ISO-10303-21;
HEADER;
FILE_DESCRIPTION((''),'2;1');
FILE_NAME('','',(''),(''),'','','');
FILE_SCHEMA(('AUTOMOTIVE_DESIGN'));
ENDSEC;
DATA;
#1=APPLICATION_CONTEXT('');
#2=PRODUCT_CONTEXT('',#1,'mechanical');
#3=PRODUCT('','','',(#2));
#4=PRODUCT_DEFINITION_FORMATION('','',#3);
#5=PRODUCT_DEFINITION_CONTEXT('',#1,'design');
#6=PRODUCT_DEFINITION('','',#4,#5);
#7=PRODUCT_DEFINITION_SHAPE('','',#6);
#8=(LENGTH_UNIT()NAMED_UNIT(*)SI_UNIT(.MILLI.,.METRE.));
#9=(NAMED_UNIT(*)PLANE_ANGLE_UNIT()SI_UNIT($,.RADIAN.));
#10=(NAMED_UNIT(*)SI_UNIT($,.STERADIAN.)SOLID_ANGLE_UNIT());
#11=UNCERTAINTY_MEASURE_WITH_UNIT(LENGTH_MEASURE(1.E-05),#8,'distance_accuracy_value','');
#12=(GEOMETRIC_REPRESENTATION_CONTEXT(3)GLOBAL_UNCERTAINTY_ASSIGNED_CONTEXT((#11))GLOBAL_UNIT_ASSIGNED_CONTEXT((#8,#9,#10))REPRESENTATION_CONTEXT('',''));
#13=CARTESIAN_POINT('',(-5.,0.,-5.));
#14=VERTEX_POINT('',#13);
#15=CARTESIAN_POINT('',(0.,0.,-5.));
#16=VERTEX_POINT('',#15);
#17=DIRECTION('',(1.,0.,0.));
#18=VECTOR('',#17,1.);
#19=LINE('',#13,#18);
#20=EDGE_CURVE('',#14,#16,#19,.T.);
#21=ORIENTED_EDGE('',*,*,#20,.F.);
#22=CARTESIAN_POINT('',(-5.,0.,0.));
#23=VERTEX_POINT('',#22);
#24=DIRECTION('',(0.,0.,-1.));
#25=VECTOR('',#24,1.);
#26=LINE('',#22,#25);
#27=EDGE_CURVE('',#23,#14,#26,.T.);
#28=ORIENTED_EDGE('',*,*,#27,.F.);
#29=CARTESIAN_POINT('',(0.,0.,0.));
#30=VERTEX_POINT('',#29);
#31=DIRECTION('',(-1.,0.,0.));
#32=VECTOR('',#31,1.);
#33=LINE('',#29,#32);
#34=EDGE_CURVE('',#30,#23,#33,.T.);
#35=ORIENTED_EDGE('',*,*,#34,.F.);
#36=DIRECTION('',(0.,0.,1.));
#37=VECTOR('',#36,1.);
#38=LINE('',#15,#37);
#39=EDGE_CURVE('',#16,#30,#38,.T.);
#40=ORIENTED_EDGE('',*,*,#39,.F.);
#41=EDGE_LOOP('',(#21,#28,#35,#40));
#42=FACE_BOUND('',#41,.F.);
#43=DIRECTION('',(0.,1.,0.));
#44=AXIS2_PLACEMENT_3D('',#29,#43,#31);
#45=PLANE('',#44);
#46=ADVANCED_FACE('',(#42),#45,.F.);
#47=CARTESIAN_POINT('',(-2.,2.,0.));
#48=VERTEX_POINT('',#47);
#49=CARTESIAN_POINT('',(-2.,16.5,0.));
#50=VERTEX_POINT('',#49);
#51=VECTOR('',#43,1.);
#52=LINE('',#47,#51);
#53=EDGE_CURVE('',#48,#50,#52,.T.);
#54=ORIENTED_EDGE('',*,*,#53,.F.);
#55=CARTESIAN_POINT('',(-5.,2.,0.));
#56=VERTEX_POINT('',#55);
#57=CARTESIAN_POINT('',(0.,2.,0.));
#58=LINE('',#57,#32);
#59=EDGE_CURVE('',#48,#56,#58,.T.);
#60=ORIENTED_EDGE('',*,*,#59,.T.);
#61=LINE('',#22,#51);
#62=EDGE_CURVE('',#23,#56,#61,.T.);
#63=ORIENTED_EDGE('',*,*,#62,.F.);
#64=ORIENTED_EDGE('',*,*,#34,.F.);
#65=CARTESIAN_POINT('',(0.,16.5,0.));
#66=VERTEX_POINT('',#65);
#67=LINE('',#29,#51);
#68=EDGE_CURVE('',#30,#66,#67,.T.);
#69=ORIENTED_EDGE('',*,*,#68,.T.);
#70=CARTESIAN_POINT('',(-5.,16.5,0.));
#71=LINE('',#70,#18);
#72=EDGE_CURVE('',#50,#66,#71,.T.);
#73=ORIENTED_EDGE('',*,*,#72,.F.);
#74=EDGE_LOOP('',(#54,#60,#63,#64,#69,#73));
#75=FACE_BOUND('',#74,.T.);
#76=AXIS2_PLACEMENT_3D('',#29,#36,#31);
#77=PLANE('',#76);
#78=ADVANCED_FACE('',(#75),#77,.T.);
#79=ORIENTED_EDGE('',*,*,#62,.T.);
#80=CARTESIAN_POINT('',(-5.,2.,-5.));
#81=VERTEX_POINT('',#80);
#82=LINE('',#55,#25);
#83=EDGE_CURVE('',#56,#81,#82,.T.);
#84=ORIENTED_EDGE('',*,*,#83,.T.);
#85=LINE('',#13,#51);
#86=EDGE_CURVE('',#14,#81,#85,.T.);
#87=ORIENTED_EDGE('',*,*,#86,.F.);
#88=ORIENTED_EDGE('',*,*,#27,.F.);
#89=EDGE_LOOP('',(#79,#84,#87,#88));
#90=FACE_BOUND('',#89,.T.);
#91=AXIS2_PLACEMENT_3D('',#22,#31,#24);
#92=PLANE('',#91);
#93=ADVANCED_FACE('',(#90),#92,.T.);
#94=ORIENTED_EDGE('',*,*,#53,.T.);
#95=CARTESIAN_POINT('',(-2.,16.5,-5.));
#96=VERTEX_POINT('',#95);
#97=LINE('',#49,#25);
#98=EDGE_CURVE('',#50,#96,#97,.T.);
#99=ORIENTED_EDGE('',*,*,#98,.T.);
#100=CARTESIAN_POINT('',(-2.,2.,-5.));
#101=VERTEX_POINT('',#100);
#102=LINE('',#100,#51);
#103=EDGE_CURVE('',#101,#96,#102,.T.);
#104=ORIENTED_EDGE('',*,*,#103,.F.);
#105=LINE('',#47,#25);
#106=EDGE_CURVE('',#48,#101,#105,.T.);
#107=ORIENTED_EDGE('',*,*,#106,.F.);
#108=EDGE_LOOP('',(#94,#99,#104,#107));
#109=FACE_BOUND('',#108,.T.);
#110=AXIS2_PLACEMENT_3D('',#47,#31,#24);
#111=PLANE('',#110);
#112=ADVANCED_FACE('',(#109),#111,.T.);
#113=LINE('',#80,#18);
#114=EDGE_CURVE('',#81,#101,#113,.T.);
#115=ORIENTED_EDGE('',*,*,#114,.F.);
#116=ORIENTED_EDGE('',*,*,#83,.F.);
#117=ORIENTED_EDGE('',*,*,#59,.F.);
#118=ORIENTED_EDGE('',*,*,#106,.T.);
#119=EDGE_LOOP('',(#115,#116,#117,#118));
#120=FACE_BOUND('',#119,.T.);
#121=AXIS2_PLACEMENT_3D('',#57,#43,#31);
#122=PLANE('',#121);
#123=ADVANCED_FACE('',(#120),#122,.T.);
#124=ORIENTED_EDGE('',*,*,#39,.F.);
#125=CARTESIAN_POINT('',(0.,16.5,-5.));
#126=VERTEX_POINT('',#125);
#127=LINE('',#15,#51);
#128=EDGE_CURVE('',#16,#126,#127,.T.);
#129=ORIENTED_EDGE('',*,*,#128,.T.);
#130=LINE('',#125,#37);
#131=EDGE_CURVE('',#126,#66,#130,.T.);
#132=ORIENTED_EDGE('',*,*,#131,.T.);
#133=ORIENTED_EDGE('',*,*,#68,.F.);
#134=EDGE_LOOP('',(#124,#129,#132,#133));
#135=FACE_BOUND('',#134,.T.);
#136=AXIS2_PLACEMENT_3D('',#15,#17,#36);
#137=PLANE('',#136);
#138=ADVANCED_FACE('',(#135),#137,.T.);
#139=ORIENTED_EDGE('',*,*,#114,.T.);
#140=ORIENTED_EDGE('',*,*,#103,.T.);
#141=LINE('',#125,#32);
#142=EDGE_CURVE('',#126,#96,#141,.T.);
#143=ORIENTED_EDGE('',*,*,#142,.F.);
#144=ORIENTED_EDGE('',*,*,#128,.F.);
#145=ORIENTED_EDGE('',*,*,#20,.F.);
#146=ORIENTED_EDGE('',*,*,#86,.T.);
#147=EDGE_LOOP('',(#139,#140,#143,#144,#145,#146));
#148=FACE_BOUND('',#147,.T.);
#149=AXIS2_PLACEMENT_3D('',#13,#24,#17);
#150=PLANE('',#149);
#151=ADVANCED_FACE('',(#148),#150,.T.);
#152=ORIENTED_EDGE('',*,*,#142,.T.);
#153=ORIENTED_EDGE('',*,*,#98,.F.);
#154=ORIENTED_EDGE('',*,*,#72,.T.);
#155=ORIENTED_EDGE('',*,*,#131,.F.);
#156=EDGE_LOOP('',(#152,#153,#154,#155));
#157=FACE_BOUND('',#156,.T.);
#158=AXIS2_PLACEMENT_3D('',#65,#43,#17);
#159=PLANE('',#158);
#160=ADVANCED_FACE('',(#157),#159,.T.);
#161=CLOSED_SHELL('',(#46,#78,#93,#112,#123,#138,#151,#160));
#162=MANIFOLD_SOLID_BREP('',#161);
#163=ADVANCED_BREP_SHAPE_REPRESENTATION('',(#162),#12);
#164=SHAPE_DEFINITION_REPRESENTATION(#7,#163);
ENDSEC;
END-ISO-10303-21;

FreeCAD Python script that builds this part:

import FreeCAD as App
import Part
import Sketcher
from FreeCAD import Vector
Q = App.Units.Quantity

doc = App.newDocument("Part")
params = doc.addObject("Spreadsheet::Sheet", "Params")
for row, (alias, value) in enumerate([
    ("sketch1_width", "5 mm"),
    ("pad1_length", "2 mm"),
    ("sketch2_width", "2 mm"),
    ("sketch2_height", "5 mm"),
    ("pad2_length", "14.5 mm"),
], start=1):
    params.set(f"A{row}", alias)
    params.set(f"B{row}", "=" + value)
    params.setAlias(f"B{row}", alias)

body = doc.addObject("PartDesign::Body", "Body")

# Sketch on XZ plane
sketch1 = body.newObject("Sketcher::SketchObject", "Sketch")
sketch1.AttachmentSupport = (doc.getObject("XZ_Plane"), [""])
sketch1.MapMode = "FlatFace"
sketch1.addGeometry([
    Part.LineSegment(Vector(-5, 0, 0), Vector(0, 0, 0)),
    Part.LineSegment(Vector(0, 0, 0), Vector(0, -5, 0)),
    Part.LineSegment(Vector(0, -5, 0), Vector(-5, -5, 0)),
    Part.LineSegment(Vector(-5, -5, 0), Vector(-5, 0, 0)),
], False)
sketch1.addConstraint([
    Sketcher.Constraint("Coincident", 0, 2, 1, 1),
    Sketcher.Constraint("Coincident", 1, 2, 2, 1),
    Sketcher.Constraint("Coincident", 2, 2, 3, 1),
    Sketcher.Constraint("Coincident", 3, 2, 0, 1),
    Sketcher.Constraint("Horizontal", 0),
    Sketcher.Constraint("Vertical", 1),
    Sketcher.Constraint("Horizontal", 2),
    Sketcher.Constraint("Vertical", 3),
    Sketcher.Constraint("Coincident", 0, 2, -1, 1),
    Sketcher.Constraint("Equal", 2, 1),
    Sketcher.Constraint("DistanceX", 0, 1, 0, 2, Q("5 mm")),
])
sketch1.setExpression("Constraints[10]", "Params.sketch1_width")
pad1 = body.newObject("PartDesign::Pad", "Pad")
pad1.Profile = sketch1
pad1.setExpression("Length", "Params.pad1_length")
pad1.Reversed = True

# Sketch on XZ plane
sketch2 = body.newObject("Sketcher::SketchObject", "Sketch001")
sketch2.AttachmentSupport = (doc.getObject("XZ_Plane"), [""])
sketch2.MapMode = "FlatFace"
sketch2.AttachmentOffset = App.Placement(Vector(0, 0, -2), App.Rotation())
sketch2.addGeometry([
    Part.LineSegment(Vector(-2, -5, 0), Vector(-2, 0, 0)),
    Part.LineSegment(Vector(-2, 0, 0), Vector(0, 0, 0)),
    Part.LineSegment(Vector(0, 0, 0), Vector(0, -5, 0)),
    Part.LineSegment(Vector(0, -5, 0), Vector(-2, -5, 0)),
], False)
sketch2.addConstraint([
    Sketcher.Constraint("Coincident", 0, 2, 1, 1),
    Sketcher.Constraint("Coincident", 1, 2, 2, 1),
    Sketcher.Constraint("Coincident", 2, 2, 3, 1),
    Sketcher.Constraint("Coincident", 3, 2, 0, 1),
    Sketcher.Constraint("Vertical", 0),
    Sketcher.Constraint("Horizontal", 1),
    Sketcher.Constraint("Vertical", 2),
    Sketcher.Constraint("Horizontal", 3),
    Sketcher.Constraint("Coincident", 1, 2, -1, 1),
    Sketcher.Constraint("DistanceX", 1, 1, 1, 2, Q("2 mm")),
    Sketcher.Constraint("DistanceY", 0, 1, 0, 2, Q("5 mm")),
])
sketch2.setExpression("Constraints[9]", "Params.sketch2_width")
sketch2.setExpression("Constraints[10]", "Params.sketch2_height")
pad2 = body.newObject("PartDesign::Pad", "Pad001")
pad2.Profile = sketch2
pad2.setExpression("Length", "Params.pad2_length")
pad2.Reversed = True

doc.recompute()
